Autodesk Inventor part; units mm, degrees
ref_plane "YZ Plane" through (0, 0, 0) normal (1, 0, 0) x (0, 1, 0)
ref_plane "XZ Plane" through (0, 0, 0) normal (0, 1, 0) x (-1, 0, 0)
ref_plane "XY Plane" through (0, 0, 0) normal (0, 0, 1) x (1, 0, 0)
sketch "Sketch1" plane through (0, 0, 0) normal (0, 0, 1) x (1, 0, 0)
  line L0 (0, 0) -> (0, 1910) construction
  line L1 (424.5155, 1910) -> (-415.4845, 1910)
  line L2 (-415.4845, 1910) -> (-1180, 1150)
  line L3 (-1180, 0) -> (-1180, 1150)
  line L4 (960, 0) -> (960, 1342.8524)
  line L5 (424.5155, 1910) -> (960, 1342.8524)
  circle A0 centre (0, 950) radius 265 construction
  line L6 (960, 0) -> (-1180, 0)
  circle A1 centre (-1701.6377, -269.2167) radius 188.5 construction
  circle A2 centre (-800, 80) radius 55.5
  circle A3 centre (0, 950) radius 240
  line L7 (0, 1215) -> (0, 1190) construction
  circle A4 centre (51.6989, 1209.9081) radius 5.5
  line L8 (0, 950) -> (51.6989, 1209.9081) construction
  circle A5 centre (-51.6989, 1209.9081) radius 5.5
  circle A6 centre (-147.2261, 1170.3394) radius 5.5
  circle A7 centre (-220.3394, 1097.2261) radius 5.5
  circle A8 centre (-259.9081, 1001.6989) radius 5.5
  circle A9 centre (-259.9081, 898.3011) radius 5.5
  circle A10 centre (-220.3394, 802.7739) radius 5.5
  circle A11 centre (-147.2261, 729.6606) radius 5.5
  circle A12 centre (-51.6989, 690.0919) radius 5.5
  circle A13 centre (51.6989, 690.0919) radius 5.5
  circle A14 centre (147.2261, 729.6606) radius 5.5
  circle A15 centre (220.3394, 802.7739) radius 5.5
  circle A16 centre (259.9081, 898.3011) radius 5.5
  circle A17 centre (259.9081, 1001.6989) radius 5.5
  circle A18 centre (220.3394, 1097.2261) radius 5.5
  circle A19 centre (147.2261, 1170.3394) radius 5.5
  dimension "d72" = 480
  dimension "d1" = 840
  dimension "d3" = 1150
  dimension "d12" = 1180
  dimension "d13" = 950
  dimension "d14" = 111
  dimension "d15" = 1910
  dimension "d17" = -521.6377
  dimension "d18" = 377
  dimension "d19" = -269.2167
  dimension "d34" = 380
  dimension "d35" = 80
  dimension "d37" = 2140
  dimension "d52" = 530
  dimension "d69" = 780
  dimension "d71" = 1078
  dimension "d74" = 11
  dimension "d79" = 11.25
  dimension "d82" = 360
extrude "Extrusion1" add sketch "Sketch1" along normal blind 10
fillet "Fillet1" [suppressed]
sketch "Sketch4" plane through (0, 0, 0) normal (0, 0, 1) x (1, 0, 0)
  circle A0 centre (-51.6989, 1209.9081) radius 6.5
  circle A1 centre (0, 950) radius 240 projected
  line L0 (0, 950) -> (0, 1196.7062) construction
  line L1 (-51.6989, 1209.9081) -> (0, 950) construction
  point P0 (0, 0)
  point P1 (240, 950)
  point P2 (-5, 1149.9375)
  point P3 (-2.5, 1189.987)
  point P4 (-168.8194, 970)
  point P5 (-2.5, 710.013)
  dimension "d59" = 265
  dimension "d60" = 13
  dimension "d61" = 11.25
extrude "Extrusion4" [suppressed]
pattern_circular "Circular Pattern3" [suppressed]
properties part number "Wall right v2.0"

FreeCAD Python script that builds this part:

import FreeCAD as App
import Part
import Sketcher

doc = App.newDocument("Part")
body = doc.addObject("PartDesign::Body", "Body")

# Sketch on XY plane
sketch1 = body.newObject("Sketcher::SketchObject", "Sketch")
sketch1.AttachmentSupport = (doc.getObject("XY_Plane"), [""])
sketch1.MapMode = "FlatFace"
sketch1.addGeometry([
    Part.LineSegment(App.Vector(960, 1342.8524, 0), App.Vector(424.5155, 1910, 0)),  # 0
    Part.LineSegment(App.Vector(424.5155, 1910, 0), App.Vector(-415.4845, 1910, 0)),  # 1
    Part.LineSegment(App.Vector(-415.4845, 1910, 0), App.Vector(-1180, 1150, 0)),  # 2
    Part.LineSegment(App.Vector(-1180, 1150, 0), App.Vector(-1180, 0, 0)),  # 3
    Part.LineSegment(App.Vector(-1180, 0, 0), App.Vector(960, 0, 0)),  # 4
    Part.LineSegment(App.Vector(960, 0, 0), App.Vector(960, 1342.8524, 0)),  # 5
    Part.Circle(App.Vector(-800, 80, 0), App.Vector(0, 0, 1), 55.5),  # 6
    Part.Circle(App.Vector(-147.2261, 729.6606, 0), App.Vector(0, 0, 1), 5.5),  # 7
    Part.Circle(App.Vector(-220.3394, 802.7739, 0), App.Vector(0, 0, 1), 5.5),  # 8
    Part.Circle(App.Vector(-259.9081, 898.3011, 0), App.Vector(0, 0, 1), 5.5),  # 9
    Part.Circle(App.Vector(-51.6989, 690.0919, 0), App.Vector(0, 0, 1), 5.5),  # 10
    Part.Circle(App.Vector(51.6989, 690.0919, 0), App.Vector(0, 0, 1), 5.5),  # 11
    Part.Circle(App.Vector(147.2261, 729.6606, 0), App.Vector(0, 0, 1), 5.5),  # 12
    Part.Circle(App.Vector(0, 950, 0), App.Vector(0, 0, 1), 240),  # 13
    Part.Circle(App.Vector(220.3394, 802.7739, 0), App.Vector(0, 0, 1), 5.5),  # 14
    Part.Circle(App.Vector(259.9081, 898.3011, 0), App.Vector(0, 0, 1), 5.5),  # 15
    Part.Circle(App.Vector(-259.9081, 1001.6989, 0), App.Vector(0, 0, 1), 5.5),  # 16
    Part.Circle(App.Vector(-220.3394, 1097.2261, 0), App.Vector(0, 0, 1), 5.5),  # 17
    Part.Circle(App.Vector(-147.2261, 1170.3394, 0), App.Vector(0, 0, 1), 5.5),  # 18
    Part.Circle(App.Vector(147.2261, 1170.3394, 0), App.Vector(0, 0, 1), 5.5),  # 19
    Part.Circle(App.Vector(259.9081, 1001.6989, 0), App.Vector(0, 0, 1), 5.5),  # 20
    Part.Circle(App.Vector(220.3394, 1097.2261, 0), App.Vector(0, 0, 1), 5.5),  # 21
    Part.Circle(App.Vector(-51.6989, 1209.9081, 0), App.Vector(0, 0, 1), 5.5),  # 22
    Part.Circle(App.Vector(51.6989, 1209.9081, 0), App.Vector(0, 0, 1), 5.5),  # 23
], False)
sketch1.addConstraint([
    Sketcher.Constraint("Coincident", 0, 2, 1, 1),
    Sketcher.Constraint("Coincident", 1, 2, 2, 1),
    Sketcher.Constraint("Coincident", 2, 2, 3, 1),
    Sketcher.Constraint("Coincident", 3, 2, 4, 1),
    Sketcher.Constraint("Coincident", 4, 2, 5, 1),
    Sketcher.Constraint("Coincident", 5, 2, 0, 1),
    Sketcher.Constraint("Horizontal", 1),
    Sketcher.Constraint("Vertical", 3),
    Sketcher.Constraint("Horizontal", 4),
    Sketcher.Constraint("Vertical", 5),
    Sketcher.Constraint("Equal", 7, 8),
    Sketcher.Constraint("Equal", 8, 9),
    Sketcher.Constraint("Equal", 9, 10),
    Sketcher.Constraint("Equal", 10, 11),
    Sketcher.Constraint("Equal", 11, 12),
    Sketcher.Constraint("Equal", 12, 14),
    Sketcher.Constraint("Equal", 14, 15),
    Sketcher.Constraint("Equal", 15, 16),
    Sketcher.Constraint("Equal", 16, 17),
    Sketcher.Constraint("Equal", 17, 18),
    Sketcher.Constraint("Equal", 18, 19),
    Sketcher.Constraint("Equal", 19, 20),
    Sketcher.Constraint("Equal", 20, 21),
    Sketcher.Constraint("Equal", 21, 22),
    Sketcher.Constraint("Equal", 22, 23),
    Sketcher.Constraint("Symmetric", 10, 3, 11, 3, -2),
    Sketcher.Constraint("Symmetric", 7, 3, 12, 3, -2),
    Sketcher.Constraint("Symmetric", 8, 3, 14, 3, -2),
    Sketcher.Constraint("Symmetric", 9, 3, 15, 3, -2),
    Sketcher.Constraint("Symmetric", 18, 3, 19, 3, -2),
    Sketcher.Constraint("Symmetric", 16, 3, 20, 3, -2),
    Sketcher.Constraint("Symmetric", 17, 3, 21, 3, -2),
    Sketcher.Constraint("Symmetric", 22, 3, 23, 3, -2),
    Sketcher.Constraint("PointOnObject", 13, 3, -2),
    Sketcher.Constraint("PointOnObject", 3, 2, -1),
    Sketcher.Constraint("Vertical", 9, 3, 16, 3),
    Sketcher.Constraint("Vertical", 8, 3, 17, 3),
    Sketcher.Constraint("Vertical", 7, 3, 18, 3),
    Sketcher.Constraint("Vertical", 10, 3, 22, 3),
    Sketcher.Constraint("Diameter", 6, 111.0),
    Sketcher.Constraint("Diameter", 7, 11.0),
    Sketcher.Constraint("Diameter", 13, 480.0),
    Sketcher.Constraint("DistanceX", 1, 2, 1, 1, 840.0),
    Sketcher.Constraint("DistanceX", 4, 1, 4, 2, 2140.0),
    Sketcher.Constraint("DistanceY", 3, 2, 3, 1, 1150.0),
    Sketcher.Constraint("Distance", 0, 780.0),
    Sketcher.Constraint("Distance", 2, 1078.0),
    Sketcher.Constraint("DistanceY", -1, 1, 6, 3, 80.0),
    Sketcher.Constraint("DistanceY", -1, 1, 13, 3, 950.0),
    Sketcher.Constraint("DistanceY", -1, 1, 0, 2, 1910.0),
    Sketcher.Constraint("DistanceX", 2, 2, -1, 1, 1180.0),
    Sketcher.Constraint("DistanceX", 3, 2, 6, 3, 380.0),
    Sketcher.Constraint("DistanceX", 7, 3, -1, 1, 147.226),
    Sketcher.Constraint("DistanceY", -1, 1, 8, 3, 802.774),
    Sketcher.Constraint("DistanceX", 9, 3, -1, 1, 259.908),
    Sketcher.Constraint("DistanceY", -1, 1, 9, 3, 898.301),
    Sketcher.Constraint("DistanceX", 10, 3, -1, 1, 51.699),
    Sketcher.Constraint("DistanceY", -1, 1, 10, 3, 690.092),
    Sketcher.Constraint("DistanceY", -1, 1, 16, 3, 1001.699),
    Sketcher.Constraint("DistanceY", -1, 1, 17, 3, 1097.226),
    Sketcher.Constraint("DistanceY", -1, 1, 22, 3, 1209.908),
    Sketcher.Constraint("DistanceX", 21, 3, 0, 2, 204.176),
    Sketcher.Constraint("DistanceY", 19, 3, 5, 2, 172.513),
    Sketcher.Constraint("DistanceY", -1, 1, 7, 3, 729.6606),
])
pad1 = body.newObject("PartDesign::Pad", "Pad")
pad1.Profile = sketch1
pad1.Length = 10

doc.recompute()
